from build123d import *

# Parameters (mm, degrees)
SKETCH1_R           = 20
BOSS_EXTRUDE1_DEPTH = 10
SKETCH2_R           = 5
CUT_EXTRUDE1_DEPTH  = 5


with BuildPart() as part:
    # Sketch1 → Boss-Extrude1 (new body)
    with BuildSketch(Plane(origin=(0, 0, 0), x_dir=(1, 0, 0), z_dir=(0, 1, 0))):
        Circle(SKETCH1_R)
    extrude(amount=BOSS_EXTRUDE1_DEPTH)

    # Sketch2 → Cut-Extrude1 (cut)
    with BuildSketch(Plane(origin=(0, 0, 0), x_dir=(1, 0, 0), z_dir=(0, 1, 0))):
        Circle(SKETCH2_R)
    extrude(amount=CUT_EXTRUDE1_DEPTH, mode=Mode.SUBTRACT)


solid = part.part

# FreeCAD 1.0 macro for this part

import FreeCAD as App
import Part
import Sketcher

V = App.Vector

doc = App.newDocument("Part")
body = doc.addObject("PartDesign::Body", "Body")

sketch1 = doc.addObject("Sketcher::SketchObject", "Sketch")
body.addObject(sketch1)
sketch1.AttachmentSupport = (doc.XZ_Plane, [""])
sketch1.MapMode = "FlatFace"
sketch1.addGeometry(Part.Circle(V(0, 0, 0), V(0, 0, 1), 20), False)
sketch1.addConstraint([
    Sketcher.Constraint("Coincident", 0, 3, -1, 1),
    Sketcher.Constraint("Diameter", 0, 40.0),
])
pad1 = doc.addObject("PartDesign::Pad", "Pad")
body.addObject(pad1)
pad1.Profile = sketch1
pad1.Length = 10
pad1.Reversed = True

sketch2 = doc.addObject("Sketcher::SketchObject", "Sketch001")
body.addObject(sketch2)
sketch2.AttachmentSupport = (doc.XZ_Plane, [""])
sketch2.MapMode = "FlatFace"
sketch2.addGeometry(Part.Circle(V(0, 0, 0), V(0, 0, 1), 5), False)
sketch2.addConstraint([
    Sketcher.Constraint("Coincident", 0, 3, -1, 1),
    Sketcher.Constraint("Diameter", 0, 10.0),
])
pocket1 = doc.addObject("PartDesign::Pocket", "Pocket")
body.addObject(pocket1)
pocket1.Profile = sketch2
pocket1.Length = 5

doc.recompute()
